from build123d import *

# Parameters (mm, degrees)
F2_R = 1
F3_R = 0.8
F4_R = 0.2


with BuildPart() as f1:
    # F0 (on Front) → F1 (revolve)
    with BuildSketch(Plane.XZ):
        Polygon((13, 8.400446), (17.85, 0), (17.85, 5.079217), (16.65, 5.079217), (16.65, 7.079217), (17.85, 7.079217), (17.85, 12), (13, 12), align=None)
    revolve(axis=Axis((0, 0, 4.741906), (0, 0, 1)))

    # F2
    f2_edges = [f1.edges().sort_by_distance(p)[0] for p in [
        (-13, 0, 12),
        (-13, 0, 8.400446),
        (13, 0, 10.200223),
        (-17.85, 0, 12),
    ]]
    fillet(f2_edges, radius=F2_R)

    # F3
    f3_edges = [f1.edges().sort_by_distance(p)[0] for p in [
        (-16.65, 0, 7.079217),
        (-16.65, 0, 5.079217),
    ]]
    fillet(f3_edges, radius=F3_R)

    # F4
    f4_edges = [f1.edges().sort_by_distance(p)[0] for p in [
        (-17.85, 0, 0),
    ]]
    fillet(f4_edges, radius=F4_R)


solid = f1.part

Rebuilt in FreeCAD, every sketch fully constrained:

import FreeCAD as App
import Part
import Sketcher

V = App.Vector
Q = App.Units.Quantity


def edges_at(feature, points):
    """Names of the edges that pass closest to the given points."""
    edges = feature.Shape.Edges
    near = lambda p: min(range(len(edges)), key=lambda i: edges[i].distToShape(Part.Vertex(*p))[0])
    return sorted({f"Edge{near(p) + 1}" for p in points})

doc = App.newDocument("Part")
body = doc.addObject("PartDesign::Body", "Body")

sketch1 = body.newObject("Sketcher::SketchObject", "Sketch")
sketch1.AttachmentSupport = (doc.getObject("XZ_Plane"), [""])
sketch1.MapMode = "FlatFace"
sketch1.addGeometry([
    Part.LineSegment(V(13, 8.400446, 0), V(17.85, 0, 0)),
    Part.LineSegment(V(17.85, 0, 0), V(17.85, 5.079217, 0)),
    Part.LineSegment(V(17.85, 5.079217, 0), V(16.65, 5.079217, 0)),
    Part.LineSegment(V(16.65, 5.079217, 0), V(16.65, 7.079217, 0)),
    Part.LineSegment(V(16.65, 7.079217, 0), V(17.85, 7.079217, 0)),
    Part.LineSegment(V(17.85, 7.079217, 0), V(17.85, 12, 0)),
    Part.LineSegment(V(17.85, 12, 0), V(13, 12, 0)),
    Part.LineSegment(V(13, 12, 0), V(13, 8.400446, 0)),
], False)
sketch1.addConstraint([
    Sketcher.Constraint("Coincident", 0, 2, 1, 1),
    Sketcher.Constraint("Coincident", 1, 2, 2, 1),
    Sketcher.Constraint("Coincident", 2, 2, 3, 1),
    Sketcher.Constraint("Coincident", 3, 2, 4, 1),
    Sketcher.Constraint("Coincident", 4, 2, 5, 1),
    Sketcher.Constraint("Coincident", 5, 2, 6, 1),
    Sketcher.Constraint("Coincident", 6, 2, 7, 1),
    Sketcher.Constraint("Coincident", 7, 2, 0, 1),
    Sketcher.Constraint("Vertical", 1),
    Sketcher.Constraint("Horizontal", 2),
    Sketcher.Constraint("Vertical", 3),
    Sketcher.Constraint("Horizontal", 4),
    Sketcher.Constraint("Vertical", 5),
    Sketcher.Constraint("Horizontal", 6),
    Sketcher.Constraint("Vertical", 7),
    Sketcher.Constraint("PointOnObject", 0, 2, -1),
    Sketcher.Constraint("Vertical", 1, 2, 4, 2),
    Sketcher.Constraint("DistanceY", 3, 1, 3, 2, Q("2 mm")),
    Sketcher.Constraint("Angle", 0, Q("-59.999999 deg")),
    Sketcher.Constraint("DistanceX", 2, 2, 2, 1, Q("1.2 mm")),
    Sketcher.Constraint("DistanceY", -1, 1, 5, 2, Q("12 mm")),
    Sketcher.Constraint("DistanceX", -1, 1, 6, 2, Q("13 mm")),
    Sketcher.Constraint("Distance", 0, Q("9.7 mm")),
    Sketcher.Constraint("DistanceY", 1, 1, 1, 2, Q("5.079217 mm")),
])
revolution = body.newObject("PartDesign::Revolution", "Revolution")
revolution.Profile = sketch1
revolution.ReferenceAxis = (sketch1, ["V_Axis"])
revolution.Angle = 360
doc.recompute()

fillet = body.newObject("PartDesign::Fillet", "Fillet")
fillet.Base = (revolution, edges_at(revolution, [
    (-13, 0, 12),
    (-13, 0, 8.4),
    (13, 0, 10.2),
    (-17.85, 0, 12),
]))
fillet.Radius = 1
doc.recompute()

fillet2 = body.newObject("PartDesign::Fillet", "Fillet001")
fillet2.Base = (fillet, edges_at(fillet, [(-16.65, 0, 7.079), (-16.65, 0, 5.079)]))
fillet2.Radius = 0.8
doc.recompute()

fillet3 = body.newObject("PartDesign::Fillet", "Fillet002")
fillet3.Base = (fillet2, edges_at(fillet2, [(-17.85, 0, 0)]))
fillet3.Radius = 0.2

doc.recompute()
